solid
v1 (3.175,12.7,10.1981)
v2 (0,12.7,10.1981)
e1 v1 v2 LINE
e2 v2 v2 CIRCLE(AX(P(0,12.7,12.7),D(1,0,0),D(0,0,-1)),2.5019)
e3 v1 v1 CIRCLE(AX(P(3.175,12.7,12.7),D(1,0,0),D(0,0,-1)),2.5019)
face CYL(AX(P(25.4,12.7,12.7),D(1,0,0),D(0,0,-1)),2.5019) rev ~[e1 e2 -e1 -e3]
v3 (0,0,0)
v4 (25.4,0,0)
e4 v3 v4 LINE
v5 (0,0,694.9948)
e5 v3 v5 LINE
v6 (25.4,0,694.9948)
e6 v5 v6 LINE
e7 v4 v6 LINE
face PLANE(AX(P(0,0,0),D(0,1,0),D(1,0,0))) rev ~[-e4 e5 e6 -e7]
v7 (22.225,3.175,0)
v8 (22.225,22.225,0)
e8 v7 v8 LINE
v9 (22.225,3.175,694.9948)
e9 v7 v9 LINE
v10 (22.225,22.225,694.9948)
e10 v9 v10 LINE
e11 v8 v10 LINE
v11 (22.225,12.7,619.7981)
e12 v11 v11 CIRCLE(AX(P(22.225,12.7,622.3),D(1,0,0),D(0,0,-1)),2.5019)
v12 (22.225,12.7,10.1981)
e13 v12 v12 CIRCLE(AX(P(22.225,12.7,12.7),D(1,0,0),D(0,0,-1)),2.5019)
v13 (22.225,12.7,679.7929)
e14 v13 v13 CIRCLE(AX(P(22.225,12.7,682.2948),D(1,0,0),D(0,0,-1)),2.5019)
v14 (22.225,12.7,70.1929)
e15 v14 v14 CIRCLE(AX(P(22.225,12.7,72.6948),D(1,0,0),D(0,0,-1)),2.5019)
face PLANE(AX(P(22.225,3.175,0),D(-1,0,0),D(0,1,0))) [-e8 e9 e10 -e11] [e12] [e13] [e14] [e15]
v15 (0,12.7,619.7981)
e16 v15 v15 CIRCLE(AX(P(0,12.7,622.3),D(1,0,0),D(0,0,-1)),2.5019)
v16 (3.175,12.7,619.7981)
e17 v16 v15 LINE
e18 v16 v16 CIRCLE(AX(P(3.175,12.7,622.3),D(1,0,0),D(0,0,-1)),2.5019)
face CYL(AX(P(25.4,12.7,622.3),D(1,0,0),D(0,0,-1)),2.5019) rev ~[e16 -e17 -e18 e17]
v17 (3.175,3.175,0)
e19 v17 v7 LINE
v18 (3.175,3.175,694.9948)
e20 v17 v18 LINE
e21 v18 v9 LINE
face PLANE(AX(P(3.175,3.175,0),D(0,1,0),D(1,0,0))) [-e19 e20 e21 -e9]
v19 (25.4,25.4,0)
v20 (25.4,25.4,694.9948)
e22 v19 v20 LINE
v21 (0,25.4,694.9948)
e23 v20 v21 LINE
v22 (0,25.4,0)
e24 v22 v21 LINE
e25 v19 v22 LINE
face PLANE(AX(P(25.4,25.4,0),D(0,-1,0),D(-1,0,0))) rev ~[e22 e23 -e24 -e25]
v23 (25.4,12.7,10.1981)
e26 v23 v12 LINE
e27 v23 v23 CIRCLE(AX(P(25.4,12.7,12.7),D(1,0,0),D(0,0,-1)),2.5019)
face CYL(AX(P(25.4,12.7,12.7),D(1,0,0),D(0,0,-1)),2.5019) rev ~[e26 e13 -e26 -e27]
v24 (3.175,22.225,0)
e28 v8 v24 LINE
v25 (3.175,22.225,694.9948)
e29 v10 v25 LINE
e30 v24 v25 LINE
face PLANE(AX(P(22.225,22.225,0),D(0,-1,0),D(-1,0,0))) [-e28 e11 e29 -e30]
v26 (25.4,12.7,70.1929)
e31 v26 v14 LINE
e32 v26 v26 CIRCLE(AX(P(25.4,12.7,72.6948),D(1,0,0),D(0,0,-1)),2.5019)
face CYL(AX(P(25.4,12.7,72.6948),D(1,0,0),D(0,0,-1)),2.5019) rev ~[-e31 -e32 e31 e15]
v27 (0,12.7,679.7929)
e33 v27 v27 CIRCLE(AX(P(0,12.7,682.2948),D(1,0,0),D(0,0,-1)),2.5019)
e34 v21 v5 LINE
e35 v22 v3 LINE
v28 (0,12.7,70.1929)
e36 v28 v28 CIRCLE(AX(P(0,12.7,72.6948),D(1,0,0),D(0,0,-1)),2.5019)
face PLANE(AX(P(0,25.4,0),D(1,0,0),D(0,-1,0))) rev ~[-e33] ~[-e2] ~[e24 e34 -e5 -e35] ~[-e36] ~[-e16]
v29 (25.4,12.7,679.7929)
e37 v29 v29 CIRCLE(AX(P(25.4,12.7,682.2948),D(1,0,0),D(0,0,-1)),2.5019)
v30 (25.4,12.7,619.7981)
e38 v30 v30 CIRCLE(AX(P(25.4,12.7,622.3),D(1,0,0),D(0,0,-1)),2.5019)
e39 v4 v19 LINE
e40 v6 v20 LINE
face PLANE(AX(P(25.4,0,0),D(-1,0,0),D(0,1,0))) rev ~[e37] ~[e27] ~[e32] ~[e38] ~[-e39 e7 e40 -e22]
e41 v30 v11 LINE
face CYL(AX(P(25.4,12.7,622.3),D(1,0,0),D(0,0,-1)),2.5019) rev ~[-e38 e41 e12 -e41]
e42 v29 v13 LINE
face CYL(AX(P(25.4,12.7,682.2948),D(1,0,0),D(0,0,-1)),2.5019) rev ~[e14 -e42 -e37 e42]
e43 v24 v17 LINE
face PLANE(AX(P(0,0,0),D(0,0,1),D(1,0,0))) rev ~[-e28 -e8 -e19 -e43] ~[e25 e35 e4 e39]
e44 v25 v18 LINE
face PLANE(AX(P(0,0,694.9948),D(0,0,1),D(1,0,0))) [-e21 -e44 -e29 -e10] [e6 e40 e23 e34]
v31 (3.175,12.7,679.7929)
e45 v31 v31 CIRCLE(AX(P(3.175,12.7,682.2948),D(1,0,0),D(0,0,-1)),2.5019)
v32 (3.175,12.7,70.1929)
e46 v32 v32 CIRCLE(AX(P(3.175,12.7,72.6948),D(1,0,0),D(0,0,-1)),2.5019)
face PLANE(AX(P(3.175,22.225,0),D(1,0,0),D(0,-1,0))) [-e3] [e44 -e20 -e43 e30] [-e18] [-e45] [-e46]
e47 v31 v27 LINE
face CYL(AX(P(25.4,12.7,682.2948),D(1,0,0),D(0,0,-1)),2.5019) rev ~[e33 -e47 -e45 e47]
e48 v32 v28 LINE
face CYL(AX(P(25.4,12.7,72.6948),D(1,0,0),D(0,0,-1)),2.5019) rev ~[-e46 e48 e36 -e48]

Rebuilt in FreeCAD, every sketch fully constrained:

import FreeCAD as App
import Part
import Sketcher
from FreeCAD import Vector
Q = App.Units.Quantity


def add_polygon(sketch, points):
    """Adds a closed chain of lines whose ends are joined by coincident constraints."""
    first, n = sketch.GeometryCount, len(points)
    for a, b in zip(points, points[1:] + points[:1]):
        sketch.addGeometry(Part.LineSegment(App.Vector(*a, 0), App.Vector(*b, 0)), False)
    for i in range(n):
        sketch.addConstraint(Sketcher.Constraint("Coincident", first + i, 2, first + (i + 1) % n, 1))

doc = App.newDocument("Part")
body = doc.addObject("PartDesign::Body", "Body")

# Sketch on XY plane
sketch1 = doc.addObject("Sketcher::SketchObject", "Sketch")
body.addObject(sketch1)
sketch1.AttachmentSupport = (doc.XY_Plane, [""])
sketch1.MapMode = "FlatFace"
add_polygon(sketch1, [(0, 25.4), (0, 0), (25.4, 0), (25.4, 25.4)])  # lines 0-3
add_polygon(sketch1, [(22.225, 3.175), (3.175, 3.175), (3.175, 22.225), (22.225, 22.225)])  # lines 4-7
sketch1.addConstraint(Sketcher.Constraint("Vertical", 0))
sketch1.addConstraint(Sketcher.Constraint("Horizontal", 1))
sketch1.addConstraint(Sketcher.Constraint("Vertical", 2))
sketch1.addConstraint(Sketcher.Constraint("Horizontal", 3))
sketch1.addConstraint(Sketcher.Constraint("Horizontal", 4))
sketch1.addConstraint(Sketcher.Constraint("Vertical", 5))
sketch1.addConstraint(Sketcher.Constraint("Horizontal", 6))
sketch1.addConstraint(Sketcher.Constraint("Vertical", 7))
sketch1.addConstraint(Sketcher.Constraint("Coincident", 0, 2, -1, 1))
sketch1.addConstraint(Sketcher.Constraint("Equal", 3, 0))
sketch1.addConstraint(Sketcher.Constraint("Equal", 6, 5))
sketch1.addConstraint(Sketcher.Constraint("DistanceX", 1, 1, 1, 2, Q("1 in")))
sketch1.addConstraint(Sketcher.Constraint("DistanceX", -1, 1, 4, 2, Q("0.125 in")))
sketch1.addConstraint(Sketcher.Constraint("DistanceY", -1, 1, 4, 2, Q("0.125 in")))
sketch1.addConstraint(Sketcher.Constraint("DistanceY", 5, 2, 3, 2, Q("0.125 in")))
pad1 = doc.addObject("PartDesign::Pad", "Pad")
body.addObject(pad1)
pad1.Profile = sketch1
pad1.Length = Q("27.362 in")

# Sketch on YZ plane
sketch2 = doc.addObject("Sketcher::SketchObject", "Sketch001")
body.addObject(sketch2)
sketch2.AttachmentSupport = (doc.YZ_Plane, [""])
sketch2.MapMode = "FlatFace"
sketch2.AttachmentOffset = App.Placement(Vector(0, 0, 1 * 25.4), App.Rotation())
sketch2.addGeometry(Part.Circle(Vector(12.7, 682.2948, 0), Vector(0, 0, 1), 2.5019), False)
sketch2.addGeometry(Part.Circle(Vector(12.7, 12.7, 0), Vector(0, 0, 1), 2.5019), False)
sketch2.addGeometry(Part.Circle(Vector(12.7, 72.6948, 0), Vector(0, 0, 1), 2.5019), False)
sketch2.addGeometry(Part.Circle(Vector(12.7, 622.3, 0), Vector(0, 0, 1), 2.5019), False)
sketch2.addConstraint(Sketcher.Constraint("Equal", 0, 1))
sketch2.addConstraint(Sketcher.Constraint("Equal", 1, 2))
sketch2.addConstraint(Sketcher.Constraint("Equal", 2, 3))
sketch2.addConstraint(Sketcher.Constraint("Vertical", 0, 3, 1, 3))
sketch2.addConstraint(Sketcher.Constraint("Vertical", 1, 3, 2, 3))
sketch2.addConstraint(Sketcher.Constraint("Vertical", 2, 3, 3, 3))
sketch2.addConstraint(Sketcher.Constraint("Diameter", 0, Q("0.197 in")))
sketch2.addConstraint(Sketcher.Constraint("DistanceX", -1, 1, 0, 3, Q("0.5 in")))
sketch2.addConstraint(Sketcher.Constraint("DistanceY", -1, 1, 1, 3, Q("0.5 in")))
sketch2.addConstraint(Sketcher.Constraint("DistanceY", 1, 3, 2, 3, Q("2.362 in")))
sketch2.addConstraint(Sketcher.Constraint("DistanceY", 2, 3, 0, 3, Q("24 in")))
sketch2.addConstraint(Sketcher.Constraint("DistanceY", 3, 3, 0, 3, Q("2.362 in")))
pocket1 = doc.addObject("PartDesign::Pocket", "Pocket")
body.addObject(pocket1)
pocket1.Profile = sketch2
pocket1.Length = Q("27.362 in")

doc.recompute()
